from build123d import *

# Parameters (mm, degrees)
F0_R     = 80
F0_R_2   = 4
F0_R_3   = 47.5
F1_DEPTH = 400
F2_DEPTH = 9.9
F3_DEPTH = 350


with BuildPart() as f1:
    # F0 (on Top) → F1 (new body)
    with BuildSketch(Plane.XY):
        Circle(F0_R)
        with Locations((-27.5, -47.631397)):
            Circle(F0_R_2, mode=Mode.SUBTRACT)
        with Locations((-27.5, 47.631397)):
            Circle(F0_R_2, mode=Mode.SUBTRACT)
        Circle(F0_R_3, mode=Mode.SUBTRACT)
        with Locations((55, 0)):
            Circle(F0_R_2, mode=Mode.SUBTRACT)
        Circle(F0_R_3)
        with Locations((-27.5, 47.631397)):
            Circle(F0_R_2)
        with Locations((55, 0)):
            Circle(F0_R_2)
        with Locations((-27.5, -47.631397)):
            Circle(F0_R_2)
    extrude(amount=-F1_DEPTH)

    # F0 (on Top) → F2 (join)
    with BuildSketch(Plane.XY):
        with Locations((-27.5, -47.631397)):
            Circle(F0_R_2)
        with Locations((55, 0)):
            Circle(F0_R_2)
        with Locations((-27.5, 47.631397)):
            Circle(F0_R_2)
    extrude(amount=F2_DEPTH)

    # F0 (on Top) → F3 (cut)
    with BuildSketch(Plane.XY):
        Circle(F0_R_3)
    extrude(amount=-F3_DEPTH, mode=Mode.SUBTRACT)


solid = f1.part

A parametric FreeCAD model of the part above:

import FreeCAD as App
import Part
import Sketcher

V = App.Vector

doc = App.newDocument("Part")
body = doc.addObject("PartDesign::Body", "Body")

# Sketch on XY plane
sketch1 = doc.addObject("Sketcher::SketchObject", "Sketch")
body.addObject(sketch1)
sketch1.AttachmentSupport = (doc.XY_Plane, [""])
sketch1.MapMode = "FlatFace"
sketch1.addGeometry(Part.Circle(V(0, 0, 0), V(0, 0, 1), 80), False)
sketch1.addConstraint([
    Sketcher.Constraint("Coincident", 0, 3, -1, 1),
    Sketcher.Constraint("Diameter", 0, 160.0),
])
pad1 = doc.addObject("PartDesign::Pad", "Pad")
body.addObject(pad1)
pad1.Profile = sketch1
pad1.Length = 400
pad1.Reversed = True

# Sketch on XY plane
sketch2 = doc.addObject("Sketcher::SketchObject", "Sketch001")
body.addObject(sketch2)
sketch2.AttachmentSupport = (doc.XY_Plane, [""])
sketch2.MapMode = "FlatFace"
sketch2.addGeometry([
    Part.Circle(V(-27.5, -47.6, 0), V(0, 0, 1), 4),
    Part.Circle(V(55, 0, 0), V(0, 0, 1), 4),
    Part.Circle(V(-27.5, 47.6, 0), V(0, 0, 1), 4),
], False)
sketch2.addConstraint([
    Sketcher.Constraint("Equal", 0, 1),
    Sketcher.Constraint("Equal", 1, 2),
    Sketcher.Constraint("Symmetric", 0, 3, 2, 3, -1),
    Sketcher.Constraint("PointOnObject", 1, 3, -1),
    Sketcher.Constraint("Diameter", 0, 8.0),
    Sketcher.Constraint("DistanceX", -1, 1, 1, 3, 55.0),
    Sketcher.Constraint("DistanceX", 0, 3, -1, 1, 27.5),
    Sketcher.Constraint("DistanceY", 0, 3, -1, 1, 47.631397),
])
pad2 = doc.addObject("PartDesign::Pad", "Pad001")
body.addObject(pad2)
pad2.Profile = sketch2
pad2.Length = 9.9

# Sketch on XY plane
sketch3 = doc.addObject("Sketcher::SketchObject", "Sketch002")
body.addObject(sketch3)
sketch3.AttachmentSupport = (doc.XY_Plane, [""])
sketch3.MapMode = "FlatFace"
sketch3.addGeometry(Part.Circle(V(0, 0, 0), V(0, 0, 1), 48), False)
sketch3.addConstraint([
    Sketcher.Constraint("Coincident", 0, 3, -1, 1),
    Sketcher.Constraint("Diameter", 0, 95.0),
])
pocket1 = doc.addObject("PartDesign::Pocket", "Pocket")
body.addObject(pocket1)
pocket1.Profile = sketch3
pocket1.Length = 350

doc.recompute()
